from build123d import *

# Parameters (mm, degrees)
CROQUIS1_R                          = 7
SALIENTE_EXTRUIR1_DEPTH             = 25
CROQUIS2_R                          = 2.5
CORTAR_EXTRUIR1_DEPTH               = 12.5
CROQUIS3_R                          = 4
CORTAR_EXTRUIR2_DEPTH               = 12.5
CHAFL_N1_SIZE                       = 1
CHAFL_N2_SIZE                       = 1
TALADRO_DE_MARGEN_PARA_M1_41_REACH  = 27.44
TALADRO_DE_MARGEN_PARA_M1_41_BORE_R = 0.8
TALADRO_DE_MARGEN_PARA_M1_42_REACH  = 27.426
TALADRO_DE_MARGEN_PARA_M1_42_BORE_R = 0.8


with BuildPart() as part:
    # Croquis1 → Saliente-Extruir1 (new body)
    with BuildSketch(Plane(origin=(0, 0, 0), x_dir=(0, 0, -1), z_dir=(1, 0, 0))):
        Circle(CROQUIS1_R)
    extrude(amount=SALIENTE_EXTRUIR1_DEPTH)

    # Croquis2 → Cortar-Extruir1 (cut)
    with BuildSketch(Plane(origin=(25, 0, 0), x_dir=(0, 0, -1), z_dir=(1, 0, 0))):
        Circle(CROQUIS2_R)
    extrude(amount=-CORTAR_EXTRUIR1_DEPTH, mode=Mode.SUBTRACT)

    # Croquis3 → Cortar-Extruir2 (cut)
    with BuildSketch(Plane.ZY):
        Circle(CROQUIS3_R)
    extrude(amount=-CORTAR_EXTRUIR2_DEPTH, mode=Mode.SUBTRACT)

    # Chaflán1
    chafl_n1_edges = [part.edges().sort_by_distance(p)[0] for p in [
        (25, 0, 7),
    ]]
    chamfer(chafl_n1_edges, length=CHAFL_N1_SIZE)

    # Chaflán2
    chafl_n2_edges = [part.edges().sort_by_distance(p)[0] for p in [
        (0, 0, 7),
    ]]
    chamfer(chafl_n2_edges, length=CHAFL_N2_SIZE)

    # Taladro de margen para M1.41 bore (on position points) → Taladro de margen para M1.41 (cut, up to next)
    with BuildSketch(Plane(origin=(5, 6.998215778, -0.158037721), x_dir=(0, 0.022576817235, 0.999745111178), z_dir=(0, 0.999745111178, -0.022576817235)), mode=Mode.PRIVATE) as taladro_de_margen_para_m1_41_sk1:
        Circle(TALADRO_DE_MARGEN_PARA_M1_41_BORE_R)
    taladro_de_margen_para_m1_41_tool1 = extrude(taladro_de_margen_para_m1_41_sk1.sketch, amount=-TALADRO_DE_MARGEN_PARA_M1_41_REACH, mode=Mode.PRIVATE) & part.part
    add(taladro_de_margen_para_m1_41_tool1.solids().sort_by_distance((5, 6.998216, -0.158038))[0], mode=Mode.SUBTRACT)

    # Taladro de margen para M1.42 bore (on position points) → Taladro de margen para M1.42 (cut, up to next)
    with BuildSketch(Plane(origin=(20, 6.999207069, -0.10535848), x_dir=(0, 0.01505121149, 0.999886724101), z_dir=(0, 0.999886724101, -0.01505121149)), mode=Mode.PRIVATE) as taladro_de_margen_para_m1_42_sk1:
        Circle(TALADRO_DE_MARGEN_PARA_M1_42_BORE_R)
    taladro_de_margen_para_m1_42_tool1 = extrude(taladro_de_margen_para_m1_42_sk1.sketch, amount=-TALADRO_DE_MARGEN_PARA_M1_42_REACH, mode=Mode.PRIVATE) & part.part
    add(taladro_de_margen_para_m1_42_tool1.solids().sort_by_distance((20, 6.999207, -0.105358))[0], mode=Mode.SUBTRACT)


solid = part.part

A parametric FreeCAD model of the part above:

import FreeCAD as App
import Part
import Sketcher

V = App.Vector


def edges_at(feature, points):
    """Names of the edges that pass closest to the given points."""
    edges = feature.Shape.Edges
    near = lambda p: min(range(len(edges)), key=lambda i: edges[i].distToShape(Part.Vertex(*p))[0])
    return sorted({f"Edge{near(p) + 1}" for p in points})

doc = App.newDocument("Part")
params = doc.addObject("Spreadsheet::Sheet", "Params")
for row, (alias, value) in enumerate([
    ("sketch1_diameter", "14 mm"),
    ("pad1_length", "25 mm"),
    ("sketch2_diameter", "5 mm"),
    ("pocket1_length", "12.5 mm"),
    ("sketch3_diameter", "8 mm"),
    ("pocket2_length", "12.5 mm"),
    ("chamfer_size", "1 mm"),
    ("chamfer2_size", "1 mm"),
    ("sketch4_diameter", "1.6 mm"),
    ("pocket3_length", "3.080816 mm"),
    ("sketch5_diameter", "1.6 mm"),
    ("pocket4_length", "4.631456 mm"),
], start=1):
    params.set(f"A{row}", alias)
    params.set(f"B{row}", "=" + value)
    params.setAlias(f"B{row}", alias)

body = doc.addObject("PartDesign::Body", "Body")

# Sketch on YZ plane
sketch1 = doc.addObject("Sketcher::SketchObject", "Sketch")
body.addObject(sketch1)
sketch1.AttachmentSupport = (doc.YZ_Plane, [""])
sketch1.MapMode = "FlatFace"
sketch1.addGeometry(Part.Circle(V(0, 0, 0), V(0, 0, 1), 7), False)
sketch1.addConstraint([
    Sketcher.Constraint("Coincident", 0, 3, -1, 1),
    Sketcher.Constraint("Diameter", 0, 14.0),
])
sketch1.setExpression("Constraints[1]", "Params.sketch1_diameter")
pad1 = doc.addObject("PartDesign::Pad", "Pad")
body.addObject(pad1)
pad1.Profile = sketch1
pad1.setExpression("Length", "Params.pad1_length")

# Sketch on YZ plane
sketch2 = doc.addObject("Sketcher::SketchObject", "Sketch001")
body.addObject(sketch2)
sketch2.AttachmentSupport = (doc.YZ_Plane, [""])
sketch2.MapMode = "FlatFace"
sketch2.AttachmentOffset = App.Placement(V(0, 0, 25), App.Rotation())
sketch2.addGeometry(Part.Circle(V(0, 0, 0), V(0, 0, 1), 2.5), False)
sketch2.addConstraint([
    Sketcher.Constraint("Coincident", 0, 3, -1, 1),
    Sketcher.Constraint("Diameter", 0, 5.0),
])
sketch2.setExpression("Constraints[1]", "Params.sketch2_diameter")
pocket1 = doc.addObject("PartDesign::Pocket", "Pocket")
body.addObject(pocket1)
pocket1.Profile = sketch2
pocket1.setExpression("Length", "Params.pocket1_length")

# Sketch on YZ plane
sketch3 = doc.addObject("Sketcher::SketchObject", "Sketch002")
body.addObject(sketch3)
sketch3.AttachmentSupport = (doc.YZ_Plane, [""])
sketch3.MapMode = "FlatFace"
sketch3.addGeometry(Part.Circle(V(0, 0, 0), V(0, 0, 1), 4), False)
sketch3.addConstraint([
    Sketcher.Constraint("Coincident", 0, 3, -1, 1),
    Sketcher.Constraint("Diameter", 0, 8.0),
])
sketch3.setExpression("Constraints[1]", "Params.sketch3_diameter")
pocket2 = doc.addObject("PartDesign::Pocket", "Pocket001")
body.addObject(pocket2)
pocket2.Profile = sketch3
pocket2.setExpression("Length", "Params.pocket2_length")
pocket2.Reversed = True
doc.recompute()

chamfer = doc.addObject("PartDesign::Chamfer", "Chamfer")
body.addObject(chamfer)
chamfer.Base = (pocket2, edges_at(pocket2, [(25, 0, 7)]))
chamfer.setExpression("Size", "Params.chamfer_size")
doc.recompute()

chamfer2 = doc.addObject("PartDesign::Chamfer", "Chamfer001")
body.addObject(chamfer2)
chamfer2.Base = (chamfer, edges_at(chamfer, [(0, 0, 7)]))
chamfer2.setExpression("Size", "Params.chamfer2_size")

# Sketch on an angled plane
sketch4 = doc.addObject("Sketcher::SketchObject", "Sketch003")
body.addObject(sketch4)
sketch4.Placement = App.Placement(V(5, 6.998216, -0.158038), App.Rotation(V(0, 0.022576817, 0.999745111), V(1, 0, 0), V(0, 0.999745111, -0.022576817), "ZXY"))
sketch4.addGeometry(Part.Circle(V(0, 0, 0), V(0, 0, 1), 0.8), False)
sketch4.addConstraint([
    Sketcher.Constraint("Coincident", 0, 3, -1, 1),
    Sketcher.Constraint("Diameter", 0, 1.6),
])
sketch4.setExpression("Constraints[1]", "Params.sketch4_diameter")
pocket3 = doc.addObject("PartDesign::Pocket", "Pocket002")
body.addObject(pocket3)
pocket3.Profile = sketch4
pocket3.setExpression("Length", "Params.pocket3_length")

# Sketch on an angled plane
sketch5 = doc.addObject("Sketcher::SketchObject", "Sketch004")
body.addObject(sketch5)
sketch5.Placement = App.Placement(V(20, 6.999207, -0.105358), App.Rotation(V(0, 0.015051211, 0.999886724), V(1, 0, 0), V(0, 0.999886724, -0.015051211), "ZXY"))
sketch5.addGeometry(Part.Circle(V(0, 0, 0), V(0, 0, 1), 0.8), False)
sketch5.addConstraint([
    Sketcher.Constraint("Coincident", 0, 3, -1, 1),
    Sketcher.Constraint("Diameter", 0, 1.6),
])
sketch5.setExpression("Constraints[1]", "Params.sketch5_diameter")
pocket4 = doc.addObject("PartDesign::Pocket", "Pocket003")
body.addObject(pocket4)
pocket4.Profile = sketch5
pocket4.setExpression("Length", "Params.pocket4_length")

doc.recompute()
